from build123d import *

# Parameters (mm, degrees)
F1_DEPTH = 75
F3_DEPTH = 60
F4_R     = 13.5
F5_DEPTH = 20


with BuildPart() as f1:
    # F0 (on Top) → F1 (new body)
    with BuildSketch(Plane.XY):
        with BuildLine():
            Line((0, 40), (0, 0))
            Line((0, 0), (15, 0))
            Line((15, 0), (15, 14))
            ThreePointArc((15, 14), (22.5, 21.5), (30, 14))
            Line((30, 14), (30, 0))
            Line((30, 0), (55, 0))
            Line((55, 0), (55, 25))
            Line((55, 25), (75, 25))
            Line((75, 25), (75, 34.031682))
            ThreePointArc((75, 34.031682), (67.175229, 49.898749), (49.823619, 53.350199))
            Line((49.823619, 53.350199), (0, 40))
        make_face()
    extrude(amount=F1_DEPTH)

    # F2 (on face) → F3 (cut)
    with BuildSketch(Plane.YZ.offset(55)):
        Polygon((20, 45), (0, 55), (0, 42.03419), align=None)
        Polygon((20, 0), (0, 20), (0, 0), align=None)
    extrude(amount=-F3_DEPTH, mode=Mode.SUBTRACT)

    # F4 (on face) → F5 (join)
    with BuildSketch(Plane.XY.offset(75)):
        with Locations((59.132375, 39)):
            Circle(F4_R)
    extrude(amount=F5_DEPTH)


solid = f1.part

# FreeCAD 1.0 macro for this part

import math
import FreeCAD as App
import Part
import Sketcher

V = App.Vector
Q = App.Units.Quantity


def add_polygon(sketch, points):
    """Adds a closed chain of lines whose ends are joined by coincident constraints."""
    first, n = sketch.GeometryCount, len(points)
    for a, b in zip(points, points[1:] + points[:1]):
        sketch.addGeometry(Part.LineSegment(App.Vector(*a, 0), App.Vector(*b, 0)), False)
    for i in range(n):
        sketch.addConstraint(Sketcher.Constraint("Coincident", first + i, 2, first + (i + 1) % n, 1))

doc = App.newDocument("Part")
body = doc.addObject("PartDesign::Body", "Body")

# Sketch on XY plane
sketch1 = body.newObject("Sketcher::SketchObject", "Sketch")
sketch1.AttachmentSupport = (doc.getObject("XY_Plane"), [""])
sketch1.MapMode = "FlatFace"
sketch1.addGeometry([
    Part.LineSegment(V(0, 40, 0), V(0, 0, 0)),  # 0
    Part.LineSegment(V(0, 0, 0), V(15, 0, 0)),  # 1
    Part.LineSegment(V(15, 0, 0), V(15, 14, 0)),  # 2
    Part.ArcOfCircle(Part.Circle(V(22, 14, 0), V(0, 0, 1), 8), math.radians(0), math.radians(180)),  # 3
    Part.LineSegment(V(30, 14, 0), V(30, 0, 0)),  # 4
    Part.LineSegment(V(30, 0, 0), V(55, 0, 0)),  # 5
    Part.LineSegment(V(55, 0, 0), V(55, 25, 0)),  # 6
    Part.LineSegment(V(55, 25, 0), V(75, 25, 0)),  # 7
    Part.LineSegment(V(75, 25, 0), V(75, 34, 0)),  # 8
    Part.ArcOfCircle(Part.Circle(V(55, 34, 0), V(0, 0, 1), 20), math.radians(0), math.radians(105)),  # 9
    Part.LineSegment(V(50, 53, 0), V(0, 40, 0)),  # 10
], False)
sketch1.addConstraint([
    Sketcher.Constraint("Coincident", 0, 2, 1, 1),
    Sketcher.Constraint("Coincident", 1, 2, 2, 1),
    Sketcher.Constraint("Tangent", 2, 2, 3, 2),
    Sketcher.Constraint("Tangent", 3, 1, 4, 1),
    Sketcher.Constraint("Coincident", 4, 2, 5, 1),
    Sketcher.Constraint("Coincident", 5, 2, 6, 1),
    Sketcher.Constraint("Coincident", 6, 2, 7, 1),
    Sketcher.Constraint("Coincident", 7, 2, 8, 1),
    Sketcher.Constraint("Tangent", 8, 2, 9, 1),
    Sketcher.Constraint("Tangent", 9, 2, 10, 1),
    Sketcher.Constraint("Coincident", 10, 2, 0, 1),
    Sketcher.Constraint("Vertical", 0),
    Sketcher.Constraint("Horizontal", 1),
    Sketcher.Constraint("Vertical", 2),
    Sketcher.Constraint("Vertical", 4),
    Sketcher.Constraint("Horizontal", 5),
    Sketcher.Constraint("Vertical", 6),
    Sketcher.Constraint("Horizontal", 7),
    Sketcher.Constraint("Vertical", 8),
    Sketcher.Constraint("Coincident", 0, 2, -1, 1),
    Sketcher.Constraint("PointOnObject", 4, 2, -1),
    Sketcher.Constraint("Vertical", 9, 3, 5, 2),
    Sketcher.Constraint("Equal", 5, 6),
    Sketcher.Constraint("Radius", 9, Q("20 mm")),
    Sketcher.Constraint("Radius", 3, Q("7.5 mm")),
    Sketcher.Constraint("DistanceX", 1, 1, 1, 2, Q("15 mm")),
    Sketcher.Constraint("DistanceX", 5, 1, 5, 2, Q("25 mm")),
    Sketcher.Constraint("DistanceY", 0, 2, 0, 1, Q("40 mm")),
    Sketcher.Constraint("DistanceY", 2, 1, 2, 2, Q("14 mm")),
    Sketcher.Constraint("Angle", 10, Q("-164.999999 deg")),
])
pad1 = body.newObject("PartDesign::Pad", "Pad")
pad1.Profile = sketch1
pad1.Length = 75

# Sketch on YZ plane
sketch2 = body.newObject("Sketcher::SketchObject", "Sketch001")
sketch2.AttachmentSupport = (doc.getObject("YZ_Plane"), [""])
sketch2.MapMode = "FlatFace"
sketch2.AttachmentOffset = App.Placement(V(0, 0, 55), App.Rotation())
add_polygon(sketch2, [(20, 45), (0, 55), (0, 42)])  # lines 0-2
add_polygon(sketch2, [(20, 0), (0, 20), (0, 0)])  # lines 3-5
sketch2.addConstraint([
    Sketcher.Constraint("Vertical", 1),
    Sketcher.Constraint("Vertical", 4),
    Sketcher.Constraint("Horizontal", 5),
    Sketcher.Constraint("Coincident", 4, 2, -1, 1),
    Sketcher.Constraint("PointOnObject", 0, 2, -2),
    Sketcher.Constraint("Vertical", 2, 2, 5, 2),
    Sketcher.Constraint("Equal", 5, 4),
    Sketcher.Constraint("DistanceX", 5, 1, 5, 2, Q("20 mm")),
    Sketcher.Constraint("DistanceY", -1, 1, 0, 2, Q("55 mm")),
    Sketcher.Constraint("DistanceY", -1, 1, 2, 2, Q("45 mm")),
    Sketcher.Constraint("DistanceY", 1, 2, 1, 1, Q("12.96581 mm")),
])
pocket1 = body.newObject("PartDesign::Pocket", "Pocket")
pocket1.Profile = sketch2
pocket1.Length = 60

# Sketch on XY plane
sketch3 = body.newObject("Sketcher::SketchObject", "Sketch002")
sketch3.AttachmentSupport = (doc.getObject("XY_Plane"), [""])
sketch3.MapMode = "FlatFace"
sketch3.AttachmentOffset = App.Placement(V(0, 0, 75), App.Rotation())
sketch3.addGeometry(Part.Circle(V(59, 39, 0), V(0, 0, 1), 14), False)
sketch3.addConstraint([
    Sketcher.Constraint("Diameter", 0, Q("27 mm")),
    Sketcher.Constraint("DistanceY", -1, 1, 0, 3, Q("39 mm")),
    Sketcher.Constraint("DistanceX", -1, 1, 0, 3, Q("59.132375 mm")),
])
pad2 = body.newObject("PartDesign::Pad", "Pad001")
pad2.Profile = sketch3
pad2.Length = 20

doc.recompute()
